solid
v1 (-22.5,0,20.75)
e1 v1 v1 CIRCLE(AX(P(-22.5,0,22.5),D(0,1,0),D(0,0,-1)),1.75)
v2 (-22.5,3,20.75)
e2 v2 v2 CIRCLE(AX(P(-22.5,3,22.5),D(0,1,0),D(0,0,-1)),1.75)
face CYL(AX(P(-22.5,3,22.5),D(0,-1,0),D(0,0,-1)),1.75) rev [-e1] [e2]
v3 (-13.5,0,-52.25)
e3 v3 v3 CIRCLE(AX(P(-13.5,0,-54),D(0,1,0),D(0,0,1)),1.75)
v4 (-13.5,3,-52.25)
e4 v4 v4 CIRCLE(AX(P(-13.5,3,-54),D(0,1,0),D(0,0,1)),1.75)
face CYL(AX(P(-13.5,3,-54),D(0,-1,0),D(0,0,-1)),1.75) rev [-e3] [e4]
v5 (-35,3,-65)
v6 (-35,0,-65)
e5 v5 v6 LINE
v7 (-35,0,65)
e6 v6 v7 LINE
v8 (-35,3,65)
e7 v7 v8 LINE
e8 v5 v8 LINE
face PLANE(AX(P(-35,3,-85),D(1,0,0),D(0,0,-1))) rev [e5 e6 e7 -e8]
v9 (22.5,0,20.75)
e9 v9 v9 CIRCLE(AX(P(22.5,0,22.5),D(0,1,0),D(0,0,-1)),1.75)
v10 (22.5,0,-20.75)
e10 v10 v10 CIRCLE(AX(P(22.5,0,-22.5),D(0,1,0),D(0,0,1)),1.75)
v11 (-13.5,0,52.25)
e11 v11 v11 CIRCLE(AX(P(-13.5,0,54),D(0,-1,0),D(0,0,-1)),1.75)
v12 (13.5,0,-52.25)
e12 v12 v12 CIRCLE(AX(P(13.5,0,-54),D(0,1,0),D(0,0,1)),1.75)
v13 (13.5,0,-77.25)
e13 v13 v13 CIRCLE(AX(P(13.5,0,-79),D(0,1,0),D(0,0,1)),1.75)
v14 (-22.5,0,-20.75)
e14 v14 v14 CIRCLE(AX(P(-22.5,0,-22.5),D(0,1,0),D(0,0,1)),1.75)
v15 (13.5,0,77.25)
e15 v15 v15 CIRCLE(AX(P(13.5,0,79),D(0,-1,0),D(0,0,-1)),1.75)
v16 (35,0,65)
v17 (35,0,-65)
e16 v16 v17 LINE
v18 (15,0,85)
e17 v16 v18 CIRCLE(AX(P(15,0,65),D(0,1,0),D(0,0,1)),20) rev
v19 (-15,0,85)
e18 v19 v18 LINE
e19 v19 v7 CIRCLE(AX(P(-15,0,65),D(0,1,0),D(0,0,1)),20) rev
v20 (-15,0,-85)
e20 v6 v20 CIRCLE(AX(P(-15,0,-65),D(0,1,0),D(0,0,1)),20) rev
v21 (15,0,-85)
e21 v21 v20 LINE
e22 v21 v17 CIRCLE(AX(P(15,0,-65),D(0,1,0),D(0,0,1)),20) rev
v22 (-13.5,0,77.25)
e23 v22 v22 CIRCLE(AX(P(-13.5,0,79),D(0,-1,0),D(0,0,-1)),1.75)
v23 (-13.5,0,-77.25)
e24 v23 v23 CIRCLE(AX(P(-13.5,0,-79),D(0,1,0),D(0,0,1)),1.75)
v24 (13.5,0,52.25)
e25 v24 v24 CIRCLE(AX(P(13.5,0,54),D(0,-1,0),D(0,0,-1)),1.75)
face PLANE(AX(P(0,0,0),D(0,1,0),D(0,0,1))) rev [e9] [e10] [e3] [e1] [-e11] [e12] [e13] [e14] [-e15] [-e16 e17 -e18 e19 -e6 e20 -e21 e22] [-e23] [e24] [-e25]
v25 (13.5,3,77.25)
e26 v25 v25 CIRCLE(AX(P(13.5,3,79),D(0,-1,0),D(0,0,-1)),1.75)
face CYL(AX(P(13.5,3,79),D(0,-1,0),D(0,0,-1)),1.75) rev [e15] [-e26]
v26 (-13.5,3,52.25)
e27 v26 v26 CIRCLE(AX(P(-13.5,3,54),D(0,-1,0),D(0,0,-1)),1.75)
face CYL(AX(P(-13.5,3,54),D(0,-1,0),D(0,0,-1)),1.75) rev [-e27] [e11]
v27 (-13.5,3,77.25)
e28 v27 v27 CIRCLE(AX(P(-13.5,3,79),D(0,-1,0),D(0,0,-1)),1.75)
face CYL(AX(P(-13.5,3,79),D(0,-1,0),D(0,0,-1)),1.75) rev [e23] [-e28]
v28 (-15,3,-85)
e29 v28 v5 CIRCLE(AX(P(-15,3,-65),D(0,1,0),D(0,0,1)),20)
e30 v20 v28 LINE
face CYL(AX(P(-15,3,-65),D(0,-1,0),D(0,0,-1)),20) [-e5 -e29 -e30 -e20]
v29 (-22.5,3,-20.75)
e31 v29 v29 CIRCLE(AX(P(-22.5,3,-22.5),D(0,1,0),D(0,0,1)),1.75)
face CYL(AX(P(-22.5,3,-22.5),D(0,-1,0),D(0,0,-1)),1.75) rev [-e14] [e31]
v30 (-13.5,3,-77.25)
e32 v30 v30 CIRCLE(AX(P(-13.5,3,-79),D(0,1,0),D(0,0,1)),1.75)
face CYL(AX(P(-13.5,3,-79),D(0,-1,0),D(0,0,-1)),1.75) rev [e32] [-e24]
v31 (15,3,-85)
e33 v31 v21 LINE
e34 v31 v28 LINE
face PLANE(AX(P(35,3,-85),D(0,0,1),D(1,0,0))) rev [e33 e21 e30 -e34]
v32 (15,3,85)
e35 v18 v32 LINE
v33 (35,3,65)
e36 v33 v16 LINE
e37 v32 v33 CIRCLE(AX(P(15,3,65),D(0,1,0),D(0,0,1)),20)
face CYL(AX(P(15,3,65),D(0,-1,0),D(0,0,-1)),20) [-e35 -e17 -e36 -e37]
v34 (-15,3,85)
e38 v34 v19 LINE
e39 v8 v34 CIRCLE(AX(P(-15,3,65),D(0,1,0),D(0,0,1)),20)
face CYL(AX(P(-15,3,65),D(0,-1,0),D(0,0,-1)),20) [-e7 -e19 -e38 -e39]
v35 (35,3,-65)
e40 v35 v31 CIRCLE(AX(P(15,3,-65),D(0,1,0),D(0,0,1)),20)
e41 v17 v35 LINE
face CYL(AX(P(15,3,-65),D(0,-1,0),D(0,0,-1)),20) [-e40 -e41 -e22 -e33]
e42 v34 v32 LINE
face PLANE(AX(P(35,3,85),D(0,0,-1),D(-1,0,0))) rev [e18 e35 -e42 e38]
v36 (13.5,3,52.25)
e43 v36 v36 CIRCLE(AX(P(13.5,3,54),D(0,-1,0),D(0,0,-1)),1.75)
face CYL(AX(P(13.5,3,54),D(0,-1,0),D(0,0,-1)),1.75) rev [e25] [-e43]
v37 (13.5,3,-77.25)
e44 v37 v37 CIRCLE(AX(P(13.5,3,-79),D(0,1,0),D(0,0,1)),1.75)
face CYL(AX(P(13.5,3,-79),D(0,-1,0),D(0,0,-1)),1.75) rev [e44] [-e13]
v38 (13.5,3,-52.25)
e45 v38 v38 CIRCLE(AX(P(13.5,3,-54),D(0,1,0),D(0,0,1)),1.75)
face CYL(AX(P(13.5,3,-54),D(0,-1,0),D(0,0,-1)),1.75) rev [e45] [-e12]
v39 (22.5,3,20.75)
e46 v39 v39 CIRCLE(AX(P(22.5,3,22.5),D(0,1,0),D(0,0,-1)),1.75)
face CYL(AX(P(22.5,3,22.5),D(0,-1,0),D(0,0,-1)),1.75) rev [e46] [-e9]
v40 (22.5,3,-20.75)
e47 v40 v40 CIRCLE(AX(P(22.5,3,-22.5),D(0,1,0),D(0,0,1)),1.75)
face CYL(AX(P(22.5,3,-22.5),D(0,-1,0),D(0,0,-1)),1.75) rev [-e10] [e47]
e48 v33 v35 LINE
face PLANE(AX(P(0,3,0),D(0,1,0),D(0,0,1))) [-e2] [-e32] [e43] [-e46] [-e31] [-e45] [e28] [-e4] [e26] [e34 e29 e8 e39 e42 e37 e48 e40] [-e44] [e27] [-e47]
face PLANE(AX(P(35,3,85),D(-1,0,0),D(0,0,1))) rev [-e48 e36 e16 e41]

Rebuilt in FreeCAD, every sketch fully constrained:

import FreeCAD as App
import Part
import Sketcher
Q = App.Units.Quantity


def edges_at(feature, points):
    """Names of the edges that pass closest to the given points."""
    edges = feature.Shape.Edges
    near = lambda p: min(range(len(edges)), key=lambda i: edges[i].distToShape(Part.Vertex(*p))[0])
    return sorted({f"Edge{near(p) + 1}" for p in points})

doc = App.newDocument("Part")
body = doc.addObject("PartDesign::Body", "Body")

# Sketch on XZ plane
sketch1 = body.newObject("Sketcher::SketchObject", "Sketch")
sketch1.AttachmentSupport = (doc.getObject("XZ_Plane"), [""])
sketch1.MapMode = "FlatFace"
sketch1.addGeometry([
    Part.LineSegment(App.Vector(-35, -85, 0), App.Vector(-35, 85, 0)),  # 0
    Part.LineSegment(App.Vector(-35, 85, 0), App.Vector(35, 85, 0)),  # 1
    Part.LineSegment(App.Vector(35, 85, 0), App.Vector(35, -85, 0)),  # 2
    Part.LineSegment(App.Vector(35, -85, 0), App.Vector(-35, -85, 0)),  # 3
    Part.Circle(App.Vector(-22.5, 22.5, 0), App.Vector(0, 0, 1), 1.8),  # 4
    Part.Circle(App.Vector(22.5, 22.5, 0), App.Vector(0, 0, 1), 1.8),  # 5
    Part.Circle(App.Vector(-22.5, -22.5, 0), App.Vector(0, 0, 1), 1.8),  # 6
    Part.Circle(App.Vector(22.5, -22.5, 0), App.Vector(0, 0, 1), 1.8),  # 7
], False)
sketch1.addConstraint([
    Sketcher.Constraint("Coincident", 0, 2, 1, 1),
    Sketcher.Constraint("Coincident", 1, 2, 2, 1),
    Sketcher.Constraint("Coincident", 2, 2, 3, 1),
    Sketcher.Constraint("Coincident", 3, 2, 0, 1),
    Sketcher.Constraint("Vertical", 0),
    Sketcher.Constraint("Horizontal", 1),
    Sketcher.Constraint("Vertical", 2),
    Sketcher.Constraint("Horizontal", 3),
    Sketcher.Constraint("Equal", 4, 5),
    Sketcher.Constraint("Equal", 5, 6),
    Sketcher.Constraint("Equal", 6, 7),
    Sketcher.Constraint("Symmetric", 5, 3, 6, 3, -1, 1),
    Sketcher.Constraint("Symmetric", 4, 3, 7, 3, -1, 1),
    Sketcher.Constraint("Symmetric", 0, 2, 2, 2, -1, 1),
    Sketcher.Constraint("Symmetric", 4, 3, 5, 3, -2),
    Sketcher.Constraint("Diameter", 4, Q("3.5 mm")),
    Sketcher.Constraint("DistanceX", 1, 1, 1, 2, Q("70 mm")),
    Sketcher.Constraint("DistanceY", 0, 1, 0, 2, Q("170 mm")),
    Sketcher.Constraint("DistanceX", 4, 3, 5, 3, Q("45 mm")),
    Sketcher.Constraint("DistanceY", 6, 3, 4, 3, Q("45 mm")),
])
pad1 = body.newObject("PartDesign::Pad", "Pad")
pad1.Profile = sketch1
pad1.Length = 3
pad1.Reversed = True

# Sketch on XZ plane
sketch2 = body.newObject("Sketcher::SketchObject", "Sketch001")
sketch2.AttachmentSupport = (doc.getObject("XZ_Plane"), [""])
sketch2.MapMode = "FlatFace"
sketch2.addGeometry([
    Part.Circle(App.Vector(-13.5, -79, 0), App.Vector(0, 0, 1), 1.8),
    Part.Circle(App.Vector(13.5, -79, 0), App.Vector(0, 0, 1), 1.8),
    Part.Circle(App.Vector(13.5, -54, 0), App.Vector(0, 0, 1), 1.8),
    Part.Circle(App.Vector(-13.5, -54, 0), App.Vector(0, 0, 1), 1.8),
], False)
sketch2.addConstraint([
    Sketcher.Constraint("Equal", 0, 1),
    Sketcher.Constraint("Equal", 1, 2),
    Sketcher.Constraint("Equal", 2, 3),
    Sketcher.Constraint("Symmetric", 0, 3, 1, 3, -2),
    Sketcher.Constraint("Symmetric", 2, 3, 3, 3, -2),
    Sketcher.Constraint("Vertical", 1, 3, 2, 3),
    Sketcher.Constraint("Diameter", 0, Q("3.5 mm")),
    Sketcher.Constraint("DistanceY", 0, 3, -1, 1, Q("79 mm")),
    Sketcher.Constraint("DistanceY", 2, 3, -1, 1, Q("54 mm")),
    Sketcher.Constraint("DistanceX", 0, 3, 1, 3, Q("27 mm")),
])
pocket1 = body.newObject("PartDesign::Pocket", "Pocket")
pocket1.Profile = sketch2
pocket1.Type = "ThroughAll"
doc.recompute()

mirrored = body.newObject("PartDesign::Mirrored", "Mirrored")
mirrored.Originals = [pocket1]
mirrored.MirrorPlane = (doc.getObject("XY_Plane"), [""])
body.Tip = mirrored
doc.recompute()

fillet = body.newObject("PartDesign::Fillet", "Fillet")
fillet.Base = (mirrored, edges_at(mirrored, [
    (35, 1.5, -85),
    (35, 1.5, 85),
    (-35, 1.5, 85),
    (-35, 1.5, -85),
]))
fillet.Radius = 20

doc.recompute()
